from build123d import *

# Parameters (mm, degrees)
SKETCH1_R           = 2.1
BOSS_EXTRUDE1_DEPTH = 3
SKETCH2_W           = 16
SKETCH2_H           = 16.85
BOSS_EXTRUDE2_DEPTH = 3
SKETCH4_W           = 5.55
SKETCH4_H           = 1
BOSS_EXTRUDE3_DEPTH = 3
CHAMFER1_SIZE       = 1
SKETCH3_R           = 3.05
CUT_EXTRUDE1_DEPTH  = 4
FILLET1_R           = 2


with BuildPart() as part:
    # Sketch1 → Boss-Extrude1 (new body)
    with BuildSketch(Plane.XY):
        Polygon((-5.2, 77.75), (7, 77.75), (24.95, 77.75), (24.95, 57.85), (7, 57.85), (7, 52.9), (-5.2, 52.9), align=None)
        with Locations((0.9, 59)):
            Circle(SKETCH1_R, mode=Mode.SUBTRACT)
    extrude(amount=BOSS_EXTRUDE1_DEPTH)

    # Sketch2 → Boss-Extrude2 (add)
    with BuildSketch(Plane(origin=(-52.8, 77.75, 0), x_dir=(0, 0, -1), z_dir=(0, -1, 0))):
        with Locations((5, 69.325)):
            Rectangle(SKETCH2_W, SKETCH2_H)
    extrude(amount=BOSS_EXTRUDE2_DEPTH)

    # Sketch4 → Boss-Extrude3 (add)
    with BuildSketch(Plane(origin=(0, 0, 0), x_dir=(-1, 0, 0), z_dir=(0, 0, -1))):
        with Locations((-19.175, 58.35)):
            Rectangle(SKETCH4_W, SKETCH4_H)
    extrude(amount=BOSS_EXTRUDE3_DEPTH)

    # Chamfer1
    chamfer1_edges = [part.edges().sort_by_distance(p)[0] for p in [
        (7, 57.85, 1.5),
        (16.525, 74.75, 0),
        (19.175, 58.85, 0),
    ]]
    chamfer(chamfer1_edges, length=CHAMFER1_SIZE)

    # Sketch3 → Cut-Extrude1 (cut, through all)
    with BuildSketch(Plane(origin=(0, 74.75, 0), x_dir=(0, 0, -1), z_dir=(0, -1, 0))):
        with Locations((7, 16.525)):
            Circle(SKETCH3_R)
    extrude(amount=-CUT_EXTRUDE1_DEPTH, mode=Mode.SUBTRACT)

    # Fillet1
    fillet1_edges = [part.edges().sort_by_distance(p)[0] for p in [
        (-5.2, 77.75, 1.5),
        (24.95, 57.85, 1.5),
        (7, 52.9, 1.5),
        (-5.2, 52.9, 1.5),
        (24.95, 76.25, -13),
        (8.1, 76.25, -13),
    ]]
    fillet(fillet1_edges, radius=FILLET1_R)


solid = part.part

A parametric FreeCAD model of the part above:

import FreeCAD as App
import Part
import Sketcher

V = App.Vector


def edges_at(feature, points):
    """Names of the edges that pass closest to the given points."""
    edges = feature.Shape.Edges
    near = lambda p: min(range(len(edges)), key=lambda i: edges[i].distToShape(Part.Vertex(*p))[0])
    return sorted({f"Edge{near(p) + 1}" for p in points})


def add_polygon(sketch, points):
    """Adds a closed chain of lines whose ends are joined by coincident constraints."""
    first, n = sketch.GeometryCount, len(points)
    for a, b in zip(points, points[1:] + points[:1]):
        sketch.addGeometry(Part.LineSegment(App.Vector(*a, 0), App.Vector(*b, 0)), False)
    for i in range(n):
        sketch.addConstraint(Sketcher.Constraint("Coincident", first + i, 2, first + (i + 1) % n, 1))

doc = App.newDocument("Part")
params = doc.addObject("Spreadsheet::Sheet", "Params")
for row, (alias, value) in enumerate([
    ("sketch1_diameter", "4.2 mm"),
    ("sketch1_width", "12.2 mm"),
    ("sketch1_height", "19.9 mm"),
    ("sketch1_width2", "30.15 mm"),
    ("sketch1_height2", "24.85 mm"),
    ("pad1_length", "3 mm"),
    ("sketch2_height", "16 mm"),
    ("sketch2_width", "16.85 mm"),
    ("pad2_length", "3 mm"),
    ("sketch3_height", "1 mm"),
    ("sketch3_width", "5.55 mm"),
    ("pad3_length", "3 mm"),
    ("chamfer_size", "1 mm"),
    ("sketch4_diameter", "6.1 mm"),
    ("fillet_radius", "2 mm"),
], start=1):
    params.set(f"A{row}", alias)
    params.set(f"B{row}", "=" + value)
    params.setAlias(f"B{row}", alias)

body = doc.addObject("PartDesign::Body", "Body")

# Sketch on XY plane
sketch1 = doc.addObject("Sketcher::SketchObject", "Sketch")
body.addObject(sketch1)
sketch1.AttachmentSupport = (doc.XY_Plane, [""])
sketch1.MapMode = "FlatFace"
add_polygon(sketch1, [(24.9, 77.8), (-5.2, 77.8), (-5.2, 52.9), (7, 52.9), (7, 57.9), (24.9, 57.9)])  # lines 0-5
sketch1.addGeometry(Part.Circle(V(0.9, 59, 0), V(0, 0, 1), 2.1), False)  # 6
sketch1.addConstraint([
    Sketcher.Constraint("Horizontal", 0),
    Sketcher.Constraint("Vertical", 1),
    Sketcher.Constraint("Horizontal", 2),
    Sketcher.Constraint("Vertical", 3),
    Sketcher.Constraint("Horizontal", 4),
    Sketcher.Constraint("Vertical", 5),
    Sketcher.Constraint("Diameter", 6, 4.2),
    Sketcher.Constraint("DistanceX", 2, 1, 2, 2, 12.2),
    Sketcher.Constraint("DistanceY", 5, 1, 5, 2, 19.9),
    Sketcher.Constraint("DistanceY", -1, 1, 6, 3, 59.0),
    Sketcher.Constraint("DistanceX", -1, 1, 2, 2, 7.0),
    Sketcher.Constraint("DistanceX", 0, 2, 0, 1, 30.15),
    Sketcher.Constraint("DistanceY", 1, 2, 1, 1, 24.85),
    Sketcher.Constraint("DistanceX", -1, 1, 6, 3, 0.9),
    Sketcher.Constraint("DistanceY", -1, 1, 1, 2, 52.9),
])
sketch1.setExpression("Constraints[12]", "Params.sketch1_diameter")
sketch1.setExpression("Constraints[13]", "Params.sketch1_width")
sketch1.setExpression("Constraints[14]", "Params.sketch1_height")
sketch1.setExpression("Constraints[17]", "Params.sketch1_width2")
sketch1.setExpression("Constraints[18]", "Params.sketch1_height2")
pad1 = doc.addObject("PartDesign::Pad", "Pad")
body.addObject(pad1)
pad1.Profile = sketch1
pad1.setExpression("Length", "Params.pad1_length")

# Sketch on XZ plane
sketch2 = doc.addObject("Sketcher::SketchObject", "Sketch001")
body.addObject(sketch2)
sketch2.AttachmentSupport = (doc.XZ_Plane, [""])
sketch2.MapMode = "FlatFace"
sketch2.AttachmentOffset = App.Placement(V(0, 0, -77.75), App.Rotation())
add_polygon(sketch2, [(25, 3), (8, 3), (8, -13), (25, -13)])  # lines 0-3
sketch2.addConstraint([
    Sketcher.Constraint("Horizontal", 0),
    Sketcher.Constraint("Vertical", 1),
    Sketcher.Constraint("Horizontal", 2),
    Sketcher.Constraint("Vertical", 3),
    Sketcher.Constraint("DistanceY", 1, 2, 1, 1, 16.0),
    Sketcher.Constraint("DistanceY", -1, 1, 0, 2, 3.0),
    Sketcher.Constraint("DistanceX", 0, 2, 0, 1, 16.85),
    Sketcher.Constraint("DistanceX", -1, 1, 0, 2, 8.1),
])
sketch2.setExpression("Constraints[8]", "Params.sketch2_height")
sketch2.setExpression("Constraints[10]", "Params.sketch2_width")
pad2 = doc.addObject("PartDesign::Pad", "Pad001")
body.addObject(pad2)
pad2.Profile = sketch2
pad2.setExpression("Length", "Params.pad2_length")

# Sketch on XY plane
sketch3 = doc.addObject("Sketcher::SketchObject", "Sketch002")
body.addObject(sketch3)
sketch3.AttachmentSupport = (doc.XY_Plane, [""])
sketch3.MapMode = "FlatFace"
add_polygon(sketch3, [(21.9, 58.9), (21.9, 57.9), (16.4, 57.9), (16.4, 58.9)])  # lines 0-3
sketch3.addConstraint([
    Sketcher.Constraint("Vertical", 0),
    Sketcher.Constraint("Horizontal", 1),
    Sketcher.Constraint("Vertical", 2),
    Sketcher.Constraint("Horizontal", 3),
    Sketcher.Constraint("DistanceY", 0, 2, 0, 1, 1.0),
    Sketcher.Constraint("DistanceX", 1, 2, 1, 1, 5.55),
    Sketcher.Constraint("DistanceX", -1, 1, 1, 2, 16.4),
    Sketcher.Constraint("DistanceY", -1, 1, 0, 2, 57.85),
])
sketch3.setExpression("Constraints[8]", "Params.sketch3_height")
sketch3.setExpression("Constraints[9]", "Params.sketch3_width")
pad3 = doc.addObject("PartDesign::Pad", "Pad002")
body.addObject(pad3)
pad3.Profile = sketch3
pad3.setExpression("Length", "Params.pad3_length")
pad3.Reversed = True
doc.recompute()

chamfer = doc.addObject("PartDesign::Chamfer", "Chamfer")
body.addObject(chamfer)
chamfer.Base = (pad3, edges_at(pad3, [(7, 57.85, 1.5), (16.525, 74.75, 0), (19.175, 58.85, 0)]))
chamfer.setExpression("Size", "Params.chamfer_size")

# Sketch on XZ plane
sketch4 = doc.addObject("Sketcher::SketchObject", "Sketch003")
body.addObject(sketch4)
sketch4.AttachmentSupport = (doc.XZ_Plane, [""])
sketch4.MapMode = "FlatFace"
sketch4.AttachmentOffset = App.Placement(V(0, 0, -74.75), App.Rotation())
sketch4.addGeometry(Part.Circle(V(16.5, -7, 0), V(0, 0, 1), 3), False)
sketch4.addConstraint([
    Sketcher.Constraint("Diameter", 0, 6.1),
    Sketcher.Constraint("DistanceY", 0, 3, -1, 1, 7.0),
    Sketcher.Constraint("DistanceX", -1, 1, 0, 3, 16.525),
])
sketch4.setExpression("Constraints[0]", "Params.sketch4_diameter")
pocket1 = doc.addObject("PartDesign::Pocket", "Pocket")
body.addObject(pocket1)
pocket1.Profile = sketch4
pocket1.Type = "ThroughAll"
doc.recompute()

fillet = doc.addObject("PartDesign::Fillet", "Fillet")
body.addObject(fillet)
fillet.Base = (pocket1, edges_at(pocket1, [
    (-5.2, 77.75, 1.5),
    (24.95, 57.85, 1.5),
    (7, 52.9, 1.5),
    (-5.2, 52.9, 1.5),
    (24.95, 76.25, -13),
    (8.1, 76.25, -13),
]))
fillet.setExpression("Radius", "Params.fillet_radius")

doc.recompute()
